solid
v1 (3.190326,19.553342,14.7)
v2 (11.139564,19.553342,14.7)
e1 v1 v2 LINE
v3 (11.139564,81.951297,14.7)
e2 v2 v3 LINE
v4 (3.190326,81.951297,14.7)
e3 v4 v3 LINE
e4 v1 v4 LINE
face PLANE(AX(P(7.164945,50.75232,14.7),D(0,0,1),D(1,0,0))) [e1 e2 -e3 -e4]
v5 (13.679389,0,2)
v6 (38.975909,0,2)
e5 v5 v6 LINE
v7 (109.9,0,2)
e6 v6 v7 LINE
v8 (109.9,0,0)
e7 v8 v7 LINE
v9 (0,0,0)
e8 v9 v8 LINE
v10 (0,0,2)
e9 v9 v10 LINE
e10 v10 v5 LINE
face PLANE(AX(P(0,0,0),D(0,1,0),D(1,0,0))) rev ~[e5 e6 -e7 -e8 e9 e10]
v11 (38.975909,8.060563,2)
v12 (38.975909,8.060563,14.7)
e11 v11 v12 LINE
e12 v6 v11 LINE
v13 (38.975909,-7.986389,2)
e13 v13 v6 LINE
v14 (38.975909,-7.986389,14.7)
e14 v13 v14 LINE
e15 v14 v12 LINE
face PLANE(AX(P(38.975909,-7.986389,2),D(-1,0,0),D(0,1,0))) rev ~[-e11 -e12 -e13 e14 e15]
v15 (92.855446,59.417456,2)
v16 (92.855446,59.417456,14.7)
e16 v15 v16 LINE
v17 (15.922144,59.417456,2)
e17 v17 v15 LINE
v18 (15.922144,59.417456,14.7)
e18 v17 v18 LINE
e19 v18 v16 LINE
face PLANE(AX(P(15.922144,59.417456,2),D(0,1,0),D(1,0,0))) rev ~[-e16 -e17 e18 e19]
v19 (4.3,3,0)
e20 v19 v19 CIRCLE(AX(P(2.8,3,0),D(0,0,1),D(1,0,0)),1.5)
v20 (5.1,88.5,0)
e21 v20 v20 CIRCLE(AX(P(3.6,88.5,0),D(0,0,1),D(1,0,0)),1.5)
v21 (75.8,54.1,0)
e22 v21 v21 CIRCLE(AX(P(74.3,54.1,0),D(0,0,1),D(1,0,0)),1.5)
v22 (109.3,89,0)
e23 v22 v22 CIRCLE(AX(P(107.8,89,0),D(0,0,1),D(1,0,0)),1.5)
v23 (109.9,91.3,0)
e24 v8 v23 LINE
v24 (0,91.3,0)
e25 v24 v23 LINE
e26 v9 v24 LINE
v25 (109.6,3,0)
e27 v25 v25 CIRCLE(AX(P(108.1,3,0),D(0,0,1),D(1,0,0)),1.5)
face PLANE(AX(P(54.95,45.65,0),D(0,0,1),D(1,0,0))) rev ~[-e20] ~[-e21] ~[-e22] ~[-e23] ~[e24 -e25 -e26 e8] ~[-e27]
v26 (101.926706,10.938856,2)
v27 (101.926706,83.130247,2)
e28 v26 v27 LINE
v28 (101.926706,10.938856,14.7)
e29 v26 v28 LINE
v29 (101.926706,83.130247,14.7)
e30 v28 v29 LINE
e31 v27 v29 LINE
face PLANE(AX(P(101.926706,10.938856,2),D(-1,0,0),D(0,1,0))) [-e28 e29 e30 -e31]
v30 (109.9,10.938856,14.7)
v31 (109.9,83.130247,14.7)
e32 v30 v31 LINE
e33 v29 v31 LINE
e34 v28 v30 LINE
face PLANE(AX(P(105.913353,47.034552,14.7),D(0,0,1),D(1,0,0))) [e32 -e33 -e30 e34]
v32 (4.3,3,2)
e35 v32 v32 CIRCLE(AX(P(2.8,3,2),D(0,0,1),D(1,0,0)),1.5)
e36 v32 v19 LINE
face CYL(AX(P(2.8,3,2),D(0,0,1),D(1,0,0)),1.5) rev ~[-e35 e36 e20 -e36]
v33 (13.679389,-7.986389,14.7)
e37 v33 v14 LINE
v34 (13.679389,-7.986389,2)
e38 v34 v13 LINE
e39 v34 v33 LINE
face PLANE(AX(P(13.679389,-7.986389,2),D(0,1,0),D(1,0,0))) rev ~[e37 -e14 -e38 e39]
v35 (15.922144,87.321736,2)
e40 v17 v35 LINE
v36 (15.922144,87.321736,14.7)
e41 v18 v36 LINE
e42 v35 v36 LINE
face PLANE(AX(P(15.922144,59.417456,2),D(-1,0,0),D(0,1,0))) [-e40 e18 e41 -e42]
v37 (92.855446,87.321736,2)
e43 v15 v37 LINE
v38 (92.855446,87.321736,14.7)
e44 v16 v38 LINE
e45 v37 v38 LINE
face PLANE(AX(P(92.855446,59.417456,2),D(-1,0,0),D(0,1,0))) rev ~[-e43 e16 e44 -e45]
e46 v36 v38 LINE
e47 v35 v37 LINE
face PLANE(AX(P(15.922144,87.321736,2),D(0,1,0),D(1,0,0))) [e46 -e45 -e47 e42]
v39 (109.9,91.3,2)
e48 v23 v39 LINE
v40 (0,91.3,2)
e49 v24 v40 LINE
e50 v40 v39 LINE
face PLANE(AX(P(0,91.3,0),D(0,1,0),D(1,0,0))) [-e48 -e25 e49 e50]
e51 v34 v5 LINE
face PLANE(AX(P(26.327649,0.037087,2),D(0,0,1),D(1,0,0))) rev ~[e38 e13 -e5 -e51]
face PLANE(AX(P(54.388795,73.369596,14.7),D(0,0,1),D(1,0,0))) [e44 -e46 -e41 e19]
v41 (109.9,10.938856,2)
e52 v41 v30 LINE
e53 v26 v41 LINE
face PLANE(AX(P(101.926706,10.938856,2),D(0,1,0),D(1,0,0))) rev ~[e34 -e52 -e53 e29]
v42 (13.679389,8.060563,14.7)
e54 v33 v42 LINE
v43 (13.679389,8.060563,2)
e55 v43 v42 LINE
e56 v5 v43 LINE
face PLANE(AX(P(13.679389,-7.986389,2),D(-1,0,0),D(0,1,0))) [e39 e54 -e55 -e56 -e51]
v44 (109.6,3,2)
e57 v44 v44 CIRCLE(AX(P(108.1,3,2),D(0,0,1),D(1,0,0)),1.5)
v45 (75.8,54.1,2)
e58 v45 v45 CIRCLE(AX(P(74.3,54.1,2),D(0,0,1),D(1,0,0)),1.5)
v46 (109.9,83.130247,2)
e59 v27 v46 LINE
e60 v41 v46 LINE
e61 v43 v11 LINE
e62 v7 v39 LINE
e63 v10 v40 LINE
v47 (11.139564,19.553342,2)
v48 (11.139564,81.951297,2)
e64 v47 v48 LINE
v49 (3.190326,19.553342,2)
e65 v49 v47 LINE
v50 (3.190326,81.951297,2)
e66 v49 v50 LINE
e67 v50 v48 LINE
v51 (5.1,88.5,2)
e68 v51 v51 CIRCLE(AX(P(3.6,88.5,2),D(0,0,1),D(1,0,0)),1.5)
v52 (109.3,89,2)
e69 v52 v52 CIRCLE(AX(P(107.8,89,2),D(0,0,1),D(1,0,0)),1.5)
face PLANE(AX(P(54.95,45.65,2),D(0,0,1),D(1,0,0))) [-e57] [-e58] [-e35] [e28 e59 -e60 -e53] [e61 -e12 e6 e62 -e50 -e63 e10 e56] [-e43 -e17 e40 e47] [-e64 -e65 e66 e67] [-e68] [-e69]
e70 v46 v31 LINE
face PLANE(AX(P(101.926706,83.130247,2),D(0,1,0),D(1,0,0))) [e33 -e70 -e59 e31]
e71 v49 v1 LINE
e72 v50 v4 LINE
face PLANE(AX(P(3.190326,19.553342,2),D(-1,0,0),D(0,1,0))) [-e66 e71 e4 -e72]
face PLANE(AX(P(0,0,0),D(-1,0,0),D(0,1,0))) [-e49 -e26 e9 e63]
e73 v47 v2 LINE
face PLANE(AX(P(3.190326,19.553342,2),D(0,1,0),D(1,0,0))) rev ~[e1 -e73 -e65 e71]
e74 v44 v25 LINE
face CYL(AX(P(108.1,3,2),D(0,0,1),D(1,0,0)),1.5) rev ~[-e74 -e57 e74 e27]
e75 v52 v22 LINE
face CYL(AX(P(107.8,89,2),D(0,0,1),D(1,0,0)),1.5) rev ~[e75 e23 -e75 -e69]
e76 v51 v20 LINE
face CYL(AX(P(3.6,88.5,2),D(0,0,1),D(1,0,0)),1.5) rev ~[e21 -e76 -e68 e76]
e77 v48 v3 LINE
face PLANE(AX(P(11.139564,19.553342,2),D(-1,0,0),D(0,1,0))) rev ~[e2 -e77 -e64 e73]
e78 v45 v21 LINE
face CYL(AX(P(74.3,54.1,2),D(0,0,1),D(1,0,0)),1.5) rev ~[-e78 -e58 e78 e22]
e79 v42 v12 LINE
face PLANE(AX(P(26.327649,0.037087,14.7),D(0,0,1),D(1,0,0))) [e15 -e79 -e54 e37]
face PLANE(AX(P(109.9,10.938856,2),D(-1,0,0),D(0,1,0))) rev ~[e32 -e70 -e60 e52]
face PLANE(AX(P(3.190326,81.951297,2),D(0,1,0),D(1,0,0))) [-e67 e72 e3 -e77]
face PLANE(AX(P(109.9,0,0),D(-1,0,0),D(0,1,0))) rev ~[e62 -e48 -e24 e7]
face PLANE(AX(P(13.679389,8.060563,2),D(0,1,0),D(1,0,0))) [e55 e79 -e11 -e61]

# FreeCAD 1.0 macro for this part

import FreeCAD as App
import Part
import Sketcher

doc = App.newDocument("Part")
body = doc.addObject("PartDesign::Body", "Body")

# Sketch on XY plane
sketch1 = doc.addObject("Sketcher::SketchObject", "Sketch")
body.addObject(sketch1)
sketch1.AttachmentSupport = (doc.XY_Plane, [""])
sketch1.MapMode = "FlatFace"
sketch1.addGeometry(Part.LineSegment(App.Vector(0, 91, 0), App.Vector(0, 0, 0)), False)
sketch1.addGeometry(Part.LineSegment(App.Vector(0, 0, 0), App.Vector(110, 0, 0)), False)
sketch1.addGeometry(Part.LineSegment(App.Vector(110, 0, 0), App.Vector(110, 91, 0)), False)
sketch1.addGeometry(Part.LineSegment(App.Vector(110, 91, 0), App.Vector(0, 91, 0)), False)
sketch1.addConstraint(Sketcher.Constraint("Coincident", 0, 2, 1, 1))
sketch1.addConstraint(Sketcher.Constraint("Coincident", 1, 2, 2, 1))
sketch1.addConstraint(Sketcher.Constraint("Coincident", 2, 2, 3, 1))
sketch1.addConstraint(Sketcher.Constraint("Coincident", 3, 2, 0, 1))
sketch1.addConstraint(Sketcher.Constraint("Vertical", 0))
sketch1.addConstraint(Sketcher.Constraint("Horizontal", 1))
sketch1.addConstraint(Sketcher.Constraint("Vertical", 2))
sketch1.addConstraint(Sketcher.Constraint("Horizontal", 3))
sketch1.addConstraint(Sketcher.Constraint("Coincident", 0, 2, -1, 1))
sketch1.addConstraint(Sketcher.Constraint("DistanceX", 1, 1, 1, 2, 109.9))
sketch1.addConstraint(Sketcher.Constraint("DistanceY", 0, 2, 0, 1, 91.3))
pad1 = doc.addObject("PartDesign::Pad", "Pad")
body.addObject(pad1)
pad1.Profile = sketch1
pad1.Length = 2

# Sketch on XY plane
sketch2 = doc.addObject("Sketcher::SketchObject", "Sketch001")
body.addObject(sketch2)
sketch2.AttachmentSupport = (doc.XY_Plane, [""])
sketch2.MapMode = "FlatFace"
sketch2.AttachmentOffset = App.Placement(App.Vector(0, 0, 2), App.Rotation())
sketch2.addGeometry(Part.Circle(App.Vector(3.6, 88.5, 0), App.Vector(0, 0, 1), 1.5), False)
sketch2.addGeometry(Part.Circle(App.Vector(108.1, 3, 0), App.Vector(0, 0, 1), 1.5), False)
sketch2.addGeometry(Part.Circle(App.Vector(107.8, 89, 0), App.Vector(0, 0, 1), 1.5), False)
sketch2.addGeometry(Part.Circle(App.Vector(2.8, 3, 0), App.Vector(0, 0, 1), 1.5), False)
sketch2.addGeometry(Part.Circle(App.Vector(74.3, 54.1, 0), App.Vector(0, 0, 1), 1.5), False)
sketch2.addConstraint(Sketcher.Constraint("Equal", 0, 1))
sketch2.addConstraint(Sketcher.Constraint("Equal", 1, 2))
sketch2.addConstraint(Sketcher.Constraint("Equal", 2, 3))
sketch2.addConstraint(Sketcher.Constraint("Equal", 3, 4))
sketch2.addConstraint(Sketcher.Constraint("Horizontal", 1, 3, 3, 3))
sketch2.addConstraint(Sketcher.Constraint("Diameter", 0, 3.0))
sketch2.addConstraint(Sketcher.Constraint("DistanceY", -1, 1, 1, 3, 3.0))
sketch2.addConstraint(Sketcher.Constraint("DistanceY", -1, 1, 2, 3, 89.0))
sketch2.addConstraint(Sketcher.Constraint("DistanceX", 3, 3, 2, 3, 105.0))
sketch2.addConstraint(Sketcher.Constraint("DistanceX", -1, 1, 0, 3, 3.6))
sketch2.addConstraint(Sketcher.Constraint("DistanceY", -1, 1, 0, 3, 88.5))
sketch2.addConstraint(Sketcher.Constraint("DistanceX", -1, 1, 1, 3, 108.1))
sketch2.addConstraint(Sketcher.Constraint("DistanceX", -1, 1, 2, 3, 107.8))
sketch2.addConstraint(Sketcher.Constraint("DistanceX", -1, 1, 4, 3, 74.3))
sketch2.addConstraint(Sketcher.Constraint("DistanceY", -1, 1, 4, 3, 54.1))
pocket1 = doc.addObject("PartDesign::Pocket", "Pocket")
body.addObject(pocket1)
pocket1.Profile = sketch2
pocket1.Length = 25.4

# Sketch on XY plane
sketch3 = doc.addObject("Sketcher::SketchObject", "Sketch002")
body.addObject(sketch3)
sketch3.AttachmentSupport = (doc.XY_Plane, [""])
sketch3.MapMode = "FlatFace"
sketch3.AttachmentOffset = App.Placement(App.Vector(0, 0, 2), App.Rotation())
sketch3.addGeometry(Part.LineSegment(App.Vector(14, 8, 0), App.Vector(14, -8, 0)), False)
sketch3.addGeometry(Part.LineSegment(App.Vector(14, -8, 0), App.Vector(39, -8, 0)), False)
sketch3.addGeometry(Part.LineSegment(App.Vector(39, -8, 0), App.Vector(39, 8, 0)), False)
sketch3.addGeometry(Part.LineSegment(App.Vector(39, 8, 0), App.Vector(14, 8, 0)), False)
sketch3.addConstraint(Sketcher.Constraint("Coincident", 0, 2, 1, 1))
sketch3.addConstraint(Sketcher.Constraint("Coincident", 1, 2, 2, 1))
sketch3.addConstraint(Sketcher.Constraint("Coincident", 2, 2, 3, 1))
sketch3.addConstraint(Sketcher.Constraint("Coincident", 3, 2, 0, 1))
sketch3.addConstraint(Sketcher.Constraint("Vertical", 0))
sketch3.addConstraint(Sketcher.Constraint("Horizontal", 1))
sketch3.addConstraint(Sketcher.Constraint("Vertical", 2))
sketch3.addConstraint(Sketcher.Constraint("Horizontal", 3))
sketch3.addConstraint(Sketcher.Constraint("DistanceX", 1, 1, 1, 2, 25.296519))
sketch3.addConstraint(Sketcher.Constraint("DistanceY", 0, 2, 0, 1, 16.046952))
sketch3.addConstraint(Sketcher.Constraint("DistanceX", -1, 1, 0, 2, 13.679389))
sketch3.addConstraint(Sketcher.Constraint("DistanceY", 0, 2, -1, 1, 7.986389))
pad2 = doc.addObject("PartDesign::Pad", "Pad001")
body.addObject(pad2)
pad2.Profile = sketch3
pad2.Length = 12.7

# Sketch on XY plane
sketch4 = doc.addObject("Sketcher::SketchObject", "Sketch003")
body.addObject(sketch4)
sketch4.AttachmentSupport = (doc.XY_Plane, [""])
sketch4.MapMode = "FlatFace"
sketch4.AttachmentOffset = App.Placement(App.Vector(0, 0, 2), App.Rotation())
sketch4.addGeometry(Part.LineSegment(App.Vector(3, 82, 0), App.Vector(3, 20, 0)), False)
sketch4.addGeometry(Part.LineSegment(App.Vector(3, 20, 0), App.Vector(11, 20, 0)), False)
sketch4.addGeometry(Part.LineSegment(App.Vector(11, 20, 0), App.Vector(11, 82, 0)), False)
sketch4.addGeometry(Part.LineSegment(App.Vector(11, 82, 0), App.Vector(3, 82, 0)), False)
sketch4.addConstraint(Sketcher.Constraint("Coincident", 0, 2, 1, 1))
sketch4.addConstraint(Sketcher.Constraint("Coincident", 1, 2, 2, 1))
sketch4.addConstraint(Sketcher.Constraint("Coincident", 2, 2, 3, 1))
sketch4.addConstraint(Sketcher.Constraint("Coincident", 3, 2, 0, 1))
sketch4.addConstraint(Sketcher.Constraint("Vertical", 0))
sketch4.addConstraint(Sketcher.Constraint("Horizontal", 1))
sketch4.addConstraint(Sketcher.Constraint("Vertical", 2))
sketch4.addConstraint(Sketcher.Constraint("Horizontal", 3))
sketch4.addConstraint(Sketcher.Constraint("DistanceX", 1, 1, 1, 2, 7.949238))
sketch4.addConstraint(Sketcher.Constraint("DistanceY", 0, 2, 0, 1, 62.397955))
sketch4.addConstraint(Sketcher.Constraint("DistanceX", -1, 1, 0, 2, 3.190326))
sketch4.addConstraint(Sketcher.Constraint("DistanceY", -1, 1, 0, 2, 19.553342))
pad3 = doc.addObject("PartDesign::Pad", "Pad002")
body.addObject(pad3)
pad3.Profile = sketch4
pad3.Length = 12.7

# Sketch on XY plane
sketch5 = doc.addObject("Sketcher::SketchObject", "Sketch004")
body.addObject(sketch5)
sketch5.AttachmentSupport = (doc.XY_Plane, [""])
sketch5.MapMode = "FlatFace"
sketch5.AttachmentOffset = App.Placement(App.Vector(0, 0, 2), App.Rotation())
sketch5.addGeometry(Part.LineSegment(App.Vector(102, 83, 0), App.Vector(102, 11, 0)), False)
sketch5.addGeometry(Part.LineSegment(App.Vector(102, 11, 0), App.Vector(110, 11, 0)), False)
sketch5.addGeometry(Part.LineSegment(App.Vector(110, 11, 0), App.Vector(110, 83, 0)), False)
sketch5.addGeometry(Part.LineSegment(App.Vector(110, 83, 0), App.Vector(102, 83, 0)), False)
sketch5.addGeometry(Part.LineSegment(App.Vector(16, 87, 0), App.Vector(16, 59, 0)), False)
sketch5.addGeometry(Part.LineSegment(App.Vector(16, 59, 0), App.Vector(93, 59, 0)), False)
sketch5.addGeometry(Part.LineSegment(App.Vector(93, 59, 0), App.Vector(93, 87, 0)), False)
sketch5.addGeometry(Part.LineSegment(App.Vector(93, 87, 0), App.Vector(16, 87, 0)), False)
sketch5.addConstraint(Sketcher.Constraint("Coincident", 0, 2, 1, 1))
sketch5.addConstraint(Sketcher.Constraint("Coincident", 1, 2, 2, 1))
sketch5.addConstraint(Sketcher.Constraint("Coincident", 2, 2, 3, 1))
sketch5.addConstraint(Sketcher.Constraint("Coincident", 3, 2, 0, 1))
sketch5.addConstraint(Sketcher.Constraint("Coincident", 4, 2, 5, 1))
sketch5.addConstraint(Sketcher.Constraint("Coincident", 5, 2, 6, 1))
sketch5.addConstraint(Sketcher.Constraint("Coincident", 6, 2, 7, 1))
sketch5.addConstraint(Sketcher.Constraint("Coincident", 7, 2, 4, 1))
sketch5.addConstraint(Sketcher.Constraint("Vertical", 0))
sketch5.addConstraint(Sketcher.Constraint("Horizontal", 1))
sketch5.addConstraint(Sketcher.Constraint("Vertical", 2))
sketch5.addConstraint(Sketcher.Constraint("Horizontal", 3))
sketch5.addConstraint(Sketcher.Constraint("Vertical", 4))
sketch5.addConstraint(Sketcher.Constraint("Horizontal", 5))
sketch5.addConstraint(Sketcher.Constraint("Vertical", 6))
sketch5.addConstraint(Sketcher.Constraint("Horizontal", 7))
sketch5.addConstraint(Sketcher.Constraint("DistanceX", -1, 1, 1, 2, 109.9))
sketch5.addConstraint(Sketcher.Constraint("DistanceX", 5, 1, 5, 2, 76.933302))
sketch5.addConstraint(Sketcher.Constraint("DistanceY", 0, 2, 0, 1, 72.191391))
sketch5.addConstraint(Sketcher.Constraint("DistanceY", 4, 2, 4, 1, 27.90428))
sketch5.addConstraint(Sketcher.Constraint("DistanceY", 0, 2, 4, 2, 48.4786))
sketch5.addConstraint(Sketcher.Constraint("DistanceX", 1, 1, 1, 2, 7.973293))
sketch5.addConstraint(Sketcher.Constraint("DistanceX", 5, 2, 3, 2, 9.07126))
sketch5.addConstraint(Sketcher.Constraint("DistanceY", -1, 1, 0, 2, 10.938856))
pad4 = doc.addObject("PartDesign::Pad", "Pad003")
body.addObject(pad4)
pad4.Profile = sketch5
pad4.Length = 12.7

doc.recompute()
